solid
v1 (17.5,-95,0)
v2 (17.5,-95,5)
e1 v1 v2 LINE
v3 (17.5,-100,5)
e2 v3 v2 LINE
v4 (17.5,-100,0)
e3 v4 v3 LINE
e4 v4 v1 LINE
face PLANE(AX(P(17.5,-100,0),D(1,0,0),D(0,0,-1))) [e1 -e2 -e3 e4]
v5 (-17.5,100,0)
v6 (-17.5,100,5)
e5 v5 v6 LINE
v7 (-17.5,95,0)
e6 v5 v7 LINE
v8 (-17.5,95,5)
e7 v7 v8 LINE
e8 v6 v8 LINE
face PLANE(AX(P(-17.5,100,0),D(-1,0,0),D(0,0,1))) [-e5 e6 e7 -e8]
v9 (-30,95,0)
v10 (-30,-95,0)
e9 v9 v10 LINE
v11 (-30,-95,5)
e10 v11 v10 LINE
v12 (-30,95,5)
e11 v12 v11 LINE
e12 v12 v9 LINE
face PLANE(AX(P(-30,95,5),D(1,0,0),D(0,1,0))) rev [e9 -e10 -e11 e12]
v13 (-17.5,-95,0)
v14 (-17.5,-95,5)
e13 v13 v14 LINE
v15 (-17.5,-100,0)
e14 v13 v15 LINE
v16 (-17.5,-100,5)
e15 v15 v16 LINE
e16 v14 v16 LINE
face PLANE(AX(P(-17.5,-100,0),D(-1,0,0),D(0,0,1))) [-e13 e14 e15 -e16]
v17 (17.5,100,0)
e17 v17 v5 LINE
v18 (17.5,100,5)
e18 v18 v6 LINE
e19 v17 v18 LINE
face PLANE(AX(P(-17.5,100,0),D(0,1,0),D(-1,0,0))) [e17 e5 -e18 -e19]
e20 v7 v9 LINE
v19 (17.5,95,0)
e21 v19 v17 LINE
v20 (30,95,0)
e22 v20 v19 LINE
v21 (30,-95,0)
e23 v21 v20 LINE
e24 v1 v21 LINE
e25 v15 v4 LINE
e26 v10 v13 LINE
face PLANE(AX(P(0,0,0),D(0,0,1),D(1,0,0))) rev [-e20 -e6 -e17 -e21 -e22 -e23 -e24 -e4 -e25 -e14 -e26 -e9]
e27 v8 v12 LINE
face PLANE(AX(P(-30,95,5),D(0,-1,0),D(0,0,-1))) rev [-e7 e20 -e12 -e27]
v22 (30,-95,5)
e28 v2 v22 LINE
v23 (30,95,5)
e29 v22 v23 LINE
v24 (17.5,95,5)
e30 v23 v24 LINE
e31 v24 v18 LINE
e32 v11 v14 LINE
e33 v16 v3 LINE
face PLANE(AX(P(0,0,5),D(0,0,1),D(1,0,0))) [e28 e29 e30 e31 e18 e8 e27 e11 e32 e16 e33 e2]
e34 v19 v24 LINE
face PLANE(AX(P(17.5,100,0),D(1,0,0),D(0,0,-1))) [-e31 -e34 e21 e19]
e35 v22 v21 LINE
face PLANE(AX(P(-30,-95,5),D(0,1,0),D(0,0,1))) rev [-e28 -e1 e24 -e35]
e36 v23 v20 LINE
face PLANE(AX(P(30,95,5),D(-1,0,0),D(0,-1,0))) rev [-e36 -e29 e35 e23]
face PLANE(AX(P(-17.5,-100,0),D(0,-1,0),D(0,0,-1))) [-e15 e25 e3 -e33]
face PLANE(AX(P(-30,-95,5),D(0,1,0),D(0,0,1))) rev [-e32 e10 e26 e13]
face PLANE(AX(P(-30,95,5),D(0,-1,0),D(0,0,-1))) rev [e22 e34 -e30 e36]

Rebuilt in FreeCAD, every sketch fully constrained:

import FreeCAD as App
import Part
import Sketcher
from FreeCAD import Vector

doc = App.newDocument("Part")
body = doc.addObject("PartDesign::Body", "Body")

# Sketch on XY plane
sketch1 = doc.addObject("Sketcher::SketchObject", "Sketch")
body.addObject(sketch1)
sketch1.AttachmentSupport = (doc.XY_Plane, [""])
sketch1.MapMode = "FlatFace"
sketch1.addGeometry([
    Part.LineSegment(Vector(-30, 95, 0), Vector(-30, -95, 0)),
    Part.LineSegment(Vector(-30, -95, 0), Vector(30, -95, 0)),
    Part.LineSegment(Vector(30, -95, 0), Vector(30, 95, 0)),
    Part.LineSegment(Vector(30, 95, 0), Vector(-30, 95, 0)),
], False)
sketch1.addConstraint([
    Sketcher.Constraint("Coincident", 0, 2, 1, 1),
    Sketcher.Constraint("Coincident", 1, 2, 2, 1),
    Sketcher.Constraint("Coincident", 2, 2, 3, 1),
    Sketcher.Constraint("Coincident", 3, 2, 0, 1),
    Sketcher.Constraint("Vertical", 0),
    Sketcher.Constraint("Horizontal", 1),
    Sketcher.Constraint("Vertical", 2),
    Sketcher.Constraint("Horizontal", 3),
    Sketcher.Constraint("Symmetric", 0, 2, 2, 2, -1, 1),
    Sketcher.Constraint("DistanceX", 1, 1, 1, 2, 60.0),
    Sketcher.Constraint("DistanceY", 0, 2, 0, 1, 190.0),
])
pad1 = doc.addObject("PartDesign::Pad", "Pad")
body.addObject(pad1)
pad1.Profile = sketch1
pad1.Length = 5

# Sketch on XY plane
sketch2 = doc.addObject("Sketcher::SketchObject", "Sketch001")
body.addObject(sketch2)
sketch2.AttachmentSupport = (doc.XY_Plane, [""])
sketch2.MapMode = "FlatFace"
sketch2.AttachmentOffset = App.Placement(Vector(0, 0, 5), App.Rotation())
sketch2.addGeometry([
    Part.LineSegment(Vector(-18, -95, 0), Vector(-18, -100, 0)),  # 0
    Part.LineSegment(Vector(-18, -100, 0), Vector(18, -100, 0)),  # 1
    Part.LineSegment(Vector(18, -100, 0), Vector(18, -95, 0)),  # 2
    Part.LineSegment(Vector(18, -95, 0), Vector(-18, -95, 0)),  # 3
    Part.LineSegment(Vector(-18, 100, 0), Vector(-18, 95, 0)),  # 4
    Part.LineSegment(Vector(-18, 95, 0), Vector(18, 95, 0)),  # 5
    Part.LineSegment(Vector(18, 95, 0), Vector(18, 100, 0)),  # 6
    Part.LineSegment(Vector(18, 100, 0), Vector(-18, 100, 0)),  # 7
], False)
sketch2.addConstraint([
    Sketcher.Constraint("Coincident", 0, 2, 1, 1),
    Sketcher.Constraint("Coincident", 1, 2, 2, 1),
    Sketcher.Constraint("Coincident", 2, 2, 3, 1),
    Sketcher.Constraint("Coincident", 3, 2, 0, 1),
    Sketcher.Constraint("Coincident", 4, 2, 5, 1),
    Sketcher.Constraint("Coincident", 5, 2, 6, 1),
    Sketcher.Constraint("Coincident", 6, 2, 7, 1),
    Sketcher.Constraint("Coincident", 7, 2, 4, 1),
    Sketcher.Constraint("Vertical", 0),
    Sketcher.Constraint("Horizontal", 1),
    Sketcher.Constraint("Vertical", 2),
    Sketcher.Constraint("Horizontal", 3),
    Sketcher.Constraint("Vertical", 4),
    Sketcher.Constraint("Horizontal", 5),
    Sketcher.Constraint("Vertical", 6),
    Sketcher.Constraint("Horizontal", 7),
    Sketcher.Constraint("Symmetric", 2, 2, 4, 2, -1, 1),
    Sketcher.Constraint("Symmetric", 0, 2, 6, 2, -1, 1),
    Sketcher.Constraint("Vertical", 3, 2, 4, 2),
    Sketcher.Constraint("DistanceX", 1, 1, 1, 2, 35.0),
    Sketcher.Constraint("DistanceY", 0, 2, 0, 1, 5.0),
    Sketcher.Constraint("DistanceY", 0, 2, -1, 1, 100.0),
])
pad2 = doc.addObject("PartDesign::Pad", "Pad001")
body.addObject(pad2)
pad2.Profile = sketch2
pad2.Length = 5
pad2.Reversed = True

doc.recompute()
